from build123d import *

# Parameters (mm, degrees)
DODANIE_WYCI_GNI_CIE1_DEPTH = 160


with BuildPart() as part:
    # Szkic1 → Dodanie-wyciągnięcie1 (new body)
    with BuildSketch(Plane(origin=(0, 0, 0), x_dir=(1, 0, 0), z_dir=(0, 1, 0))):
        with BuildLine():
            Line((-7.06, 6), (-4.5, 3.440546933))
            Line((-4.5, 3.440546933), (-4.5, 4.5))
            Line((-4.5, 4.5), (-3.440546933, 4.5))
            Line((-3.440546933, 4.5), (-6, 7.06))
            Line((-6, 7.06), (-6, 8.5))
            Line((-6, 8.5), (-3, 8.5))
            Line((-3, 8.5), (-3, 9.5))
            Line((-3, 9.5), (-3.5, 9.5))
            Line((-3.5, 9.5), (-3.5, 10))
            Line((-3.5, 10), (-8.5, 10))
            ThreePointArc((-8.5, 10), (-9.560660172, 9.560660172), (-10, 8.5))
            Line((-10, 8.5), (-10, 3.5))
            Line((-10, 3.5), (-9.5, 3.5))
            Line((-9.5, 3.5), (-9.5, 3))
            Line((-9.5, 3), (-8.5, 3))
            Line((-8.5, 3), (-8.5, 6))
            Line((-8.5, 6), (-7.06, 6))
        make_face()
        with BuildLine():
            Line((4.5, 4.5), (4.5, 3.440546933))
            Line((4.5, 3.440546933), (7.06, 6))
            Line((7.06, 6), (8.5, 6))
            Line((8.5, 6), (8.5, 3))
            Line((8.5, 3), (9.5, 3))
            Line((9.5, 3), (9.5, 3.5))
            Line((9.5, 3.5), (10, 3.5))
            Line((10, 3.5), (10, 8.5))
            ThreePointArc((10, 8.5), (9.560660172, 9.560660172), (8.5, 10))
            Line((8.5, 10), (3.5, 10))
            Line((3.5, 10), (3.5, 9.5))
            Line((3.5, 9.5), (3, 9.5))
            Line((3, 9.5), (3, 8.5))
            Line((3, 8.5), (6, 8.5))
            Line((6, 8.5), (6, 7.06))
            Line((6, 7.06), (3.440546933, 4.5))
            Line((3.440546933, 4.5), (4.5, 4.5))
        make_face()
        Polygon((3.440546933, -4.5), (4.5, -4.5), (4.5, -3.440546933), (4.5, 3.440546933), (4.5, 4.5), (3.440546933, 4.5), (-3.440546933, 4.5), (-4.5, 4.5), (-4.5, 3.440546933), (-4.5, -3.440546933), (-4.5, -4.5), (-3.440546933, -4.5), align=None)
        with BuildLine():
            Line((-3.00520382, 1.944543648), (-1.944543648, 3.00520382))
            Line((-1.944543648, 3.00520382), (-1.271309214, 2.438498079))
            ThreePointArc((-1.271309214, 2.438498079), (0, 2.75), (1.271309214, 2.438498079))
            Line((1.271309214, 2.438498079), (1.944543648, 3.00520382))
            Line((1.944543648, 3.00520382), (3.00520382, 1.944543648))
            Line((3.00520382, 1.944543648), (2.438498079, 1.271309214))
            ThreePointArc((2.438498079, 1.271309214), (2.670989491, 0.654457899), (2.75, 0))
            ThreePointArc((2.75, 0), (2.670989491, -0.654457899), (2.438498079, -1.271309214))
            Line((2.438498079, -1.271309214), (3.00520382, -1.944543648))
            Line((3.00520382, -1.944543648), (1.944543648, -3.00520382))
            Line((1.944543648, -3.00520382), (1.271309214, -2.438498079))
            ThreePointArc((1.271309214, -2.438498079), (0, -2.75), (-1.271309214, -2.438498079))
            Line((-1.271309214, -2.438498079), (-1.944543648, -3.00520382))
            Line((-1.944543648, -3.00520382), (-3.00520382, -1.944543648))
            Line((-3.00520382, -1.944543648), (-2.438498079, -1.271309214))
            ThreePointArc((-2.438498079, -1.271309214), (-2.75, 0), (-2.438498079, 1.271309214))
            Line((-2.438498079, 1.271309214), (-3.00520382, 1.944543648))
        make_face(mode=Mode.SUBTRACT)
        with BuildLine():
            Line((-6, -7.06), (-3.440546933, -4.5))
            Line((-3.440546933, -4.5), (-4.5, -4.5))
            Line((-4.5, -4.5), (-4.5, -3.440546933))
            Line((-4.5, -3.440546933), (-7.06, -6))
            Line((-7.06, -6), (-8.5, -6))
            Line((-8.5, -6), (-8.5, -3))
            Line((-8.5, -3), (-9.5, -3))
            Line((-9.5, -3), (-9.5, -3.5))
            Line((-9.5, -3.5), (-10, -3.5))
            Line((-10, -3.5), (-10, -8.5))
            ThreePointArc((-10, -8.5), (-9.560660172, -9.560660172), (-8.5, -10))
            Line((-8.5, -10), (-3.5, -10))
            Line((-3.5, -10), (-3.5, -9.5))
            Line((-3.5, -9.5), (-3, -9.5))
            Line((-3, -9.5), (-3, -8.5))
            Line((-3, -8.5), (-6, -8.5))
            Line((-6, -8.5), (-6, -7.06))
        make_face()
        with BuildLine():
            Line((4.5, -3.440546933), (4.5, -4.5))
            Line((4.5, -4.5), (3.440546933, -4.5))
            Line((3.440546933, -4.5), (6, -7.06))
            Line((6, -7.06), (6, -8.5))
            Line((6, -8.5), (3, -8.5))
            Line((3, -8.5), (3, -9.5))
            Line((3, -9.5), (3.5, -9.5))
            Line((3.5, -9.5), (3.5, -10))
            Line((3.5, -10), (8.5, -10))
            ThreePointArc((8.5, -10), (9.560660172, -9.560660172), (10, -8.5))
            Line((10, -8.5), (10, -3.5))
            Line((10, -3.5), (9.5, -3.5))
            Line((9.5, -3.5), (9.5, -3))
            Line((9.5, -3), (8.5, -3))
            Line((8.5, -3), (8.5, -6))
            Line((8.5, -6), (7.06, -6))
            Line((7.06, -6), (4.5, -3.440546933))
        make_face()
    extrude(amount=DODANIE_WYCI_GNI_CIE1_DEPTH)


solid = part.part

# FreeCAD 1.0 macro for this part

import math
import FreeCAD as App
import Part
import Sketcher
from FreeCAD import Vector
Q = App.Units.Quantity

doc = App.newDocument("Part")
body = doc.addObject("PartDesign::Body", "Body")

sketch1 = body.newObject("Sketcher::SketchObject", "Sketch")
sketch1.AttachmentSupport = (doc.getObject("XZ_Plane"), [""])
sketch1.MapMode = "FlatFace"
sketch1.addGeometry(Part.LineSegment(Vector(-7.1, -6, 0), Vector(-4.5, -3.4, 0)), False)
sketch1.addGeometry(Part.LineSegment(Vector(-4.5, -3.4, 0), Vector(-4.5, 3.4, 0)), False)
sketch1.addGeometry(Part.LineSegment(Vector(-4.5, 3.4, 0), Vector(-7.1, 6, 0)), False)
sketch1.addGeometry(Part.LineSegment(Vector(-7.1, 6, 0), Vector(-8.5, 6, 0)), False)
sketch1.addGeometry(Part.LineSegment(Vector(-8.5, 6, 0), Vector(-8.5, 3, 0)), False)
sketch1.addGeometry(Part.LineSegment(Vector(-8.5, 3, 0), Vector(-9.5, 3, 0)), False)
sketch1.addGeometry(Part.LineSegment(Vector(-9.5, 3, 0), Vector(-9.5, 3.5, 0)), False)
sketch1.addGeometry(Part.LineSegment(Vector(-9.5, 3.5, 0), Vector(-10, 3.5, 0)), False)
sketch1.addGeometry(Part.LineSegment(Vector(-10, 3.5, 0), Vector(-10, 8.5, 0)), False)
sketch1.addGeometry(Part.ArcOfCircle(Part.Circle(Vector(-8.5, 8.5, 0), Vector(0, 0, 1), 1.5), math.radians(90), math.radians(180)), False)
sketch1.addGeometry(Part.LineSegment(Vector(-8.5, 10, 0), Vector(-3.5, 10, 0)), False)
sketch1.addGeometry(Part.LineSegment(Vector(-3.5, 10, 0), Vector(-3.5, 9.5, 0)), False)
sketch1.addGeometry(Part.LineSegment(Vector(-3.5, 9.5, 0), Vector(-3, 9.5, 0)), False)
sketch1.addGeometry(Part.LineSegment(Vector(-3, 9.5, 0), Vector(-3, 8.5, 0)), False)
sketch1.addGeometry(Part.LineSegment(Vector(-3, 8.5, 0), Vector(-6, 8.5, 0)), False)
sketch1.addGeometry(Part.LineSegment(Vector(-6, 8.5, 0), Vector(-6, 7.1, 0)), False)
sketch1.addGeometry(Part.LineSegment(Vector(-6, 7.1, 0), Vector(-3.4, 4.5, 0)), False)
sketch1.addGeometry(Part.LineSegment(Vector(-3.4, 4.5, 0), Vector(3.4, 4.5, 0)), False)
sketch1.addGeometry(Part.LineSegment(Vector(3.4, 4.5, 0), Vector(6, 7.1, 0)), False)
sketch1.addGeometry(Part.LineSegment(Vector(6, 7.1, 0), Vector(6, 8.5, 0)), False)
sketch1.addGeometry(Part.LineSegment(Vector(6, 8.5, 0), Vector(3, 8.5, 0)), False)
sketch1.addGeometry(Part.LineSegment(Vector(3, 8.5, 0), Vector(3, 9.5, 0)), False)
sketch1.addGeometry(Part.LineSegment(Vector(3, 9.5, 0), Vector(3.5, 9.5, 0)), False)
sketch1.addGeometry(Part.LineSegment(Vector(3.5, 9.5, 0), Vector(3.5, 10, 0)), False)
sketch1.addGeometry(Part.LineSegment(Vector(3.5, 10, 0), Vector(8.5, 10, 0)), False)
sketch1.addGeometry(Part.ArcOfCircle(Part.Circle(Vector(8.5, 8.5, 0), Vector(0, 0, 1), 1.5), math.radians(0), math.radians(90)), False)
sketch1.addGeometry(Part.LineSegment(Vector(10, 8.5, 0), Vector(10, 3.5, 0)), False)
sketch1.addGeometry(Part.LineSegment(Vector(10, 3.5, 0), Vector(9.5, 3.5, 0)), False)
sketch1.addGeometry(Part.LineSegment(Vector(9.5, 3.5, 0), Vector(9.5, 3, 0)), False)
sketch1.addGeometry(Part.LineSegment(Vector(9.5, 3, 0), Vector(8.5, 3, 0)), False)
sketch1.addGeometry(Part.LineSegment(Vector(8.5, 3, 0), Vector(8.5, 6, 0)), False)
sketch1.addGeometry(Part.LineSegment(Vector(8.5, 6, 0), Vector(7.1, 6, 0)), False)
sketch1.addGeometry(Part.LineSegment(Vector(7.1, 6, 0), Vector(4.5, 3.4, 0)), False)
sketch1.addGeometry(Part.LineSegment(Vector(4.5, 3.4, 0), Vector(4.5, -3.4, 0)), False)
sketch1.addGeometry(Part.LineSegment(Vector(4.5, -3.4, 0), Vector(7.1, -6, 0)), False)
sketch1.addGeometry(Part.LineSegment(Vector(7.1, -6, 0), Vector(8.5, -6, 0)), False)
sketch1.addGeometry(Part.LineSegment(Vector(8.5, -6, 0), Vector(8.5, -3, 0)), False)
sketch1.addGeometry(Part.LineSegment(Vector(8.5, -3, 0), Vector(9.5, -3, 0)), False)
sketch1.addGeometry(Part.LineSegment(Vector(9.5, -3, 0), Vector(9.5, -3.5, 0)), False)
sketch1.addGeometry(Part.LineSegment(Vector(9.5, -3.5, 0), Vector(10, -3.5, 0)), False)
sketch1.addGeometry(Part.LineSegment(Vector(10, -3.5, 0), Vector(10, -8.5, 0)), False)
sketch1.addGeometry(Part.ArcOfCircle(Part.Circle(Vector(8.5, -8.5, 0), Vector(0, 0, 1), 1.5), math.radians(-90), math.radians(0)), False)
sketch1.addGeometry(Part.LineSegment(Vector(8.5, -10, 0), Vector(3.5, -10, 0)), False)
sketch1.addGeometry(Part.LineSegment(Vector(3.5, -10, 0), Vector(3.5, -9.5, 0)), False)
sketch1.addGeometry(Part.LineSegment(Vector(3.5, -9.5, 0), Vector(3, -9.5, 0)), False)
sketch1.addGeometry(Part.LineSegment(Vector(3, -9.5, 0), Vector(3, -8.5, 0)), False)
sketch1.addGeometry(Part.LineSegment(Vector(3, -8.5, 0), Vector(6, -8.5, 0)), False)
sketch1.addGeometry(Part.LineSegment(Vector(6, -8.5, 0), Vector(6, -7.1, 0)), False)
sketch1.addGeometry(Part.LineSegment(Vector(6, -7.1, 0), Vector(3.4, -4.5, 0)), False)
sketch1.addGeometry(Part.LineSegment(Vector(3.4, -4.5, 0), Vector(-3.4, -4.5, 0)), False)
sketch1.addGeometry(Part.LineSegment(Vector(-3.4, -4.5, 0), Vector(-6, -7.1, 0)), False)
sketch1.addGeometry(Part.LineSegment(Vector(-6, -7.1, 0), Vector(-6, -8.5, 0)), False)
sketch1.addGeometry(Part.LineSegment(Vector(-6, -8.5, 0), Vector(-3, -8.5, 0)), False)
sketch1.addGeometry(Part.LineSegment(Vector(-3, -8.5, 0), Vector(-3, -9.5, 0)), False)
sketch1.addGeometry(Part.LineSegment(Vector(-3, -9.5, 0), Vector(-3.5, -9.5, 0)), False)
sketch1.addGeometry(Part.LineSegment(Vector(-3.5, -9.5, 0), Vector(-3.5, -10, 0)), False)
sketch1.addGeometry(Part.LineSegment(Vector(-3.5, -10, 0), Vector(-8.5, -10, 0)), False)
sketch1.addGeometry(Part.ArcOfCircle(Part.Circle(Vector(-8.5, -8.5, 0), Vector(0, 0, 1), 1.5), math.radians(180), math.radians(270)), False)
sketch1.addGeometry(Part.LineSegment(Vector(-10, -8.5, 0), Vector(-10, -3.5, 0)), False)
sketch1.addGeometry(Part.LineSegment(Vector(-10, -3.5, 0), Vector(-9.5, -3.5, 0)), False)
sketch1.addGeometry(Part.LineSegment(Vector(-9.5, -3.5, 0), Vector(-9.5, -3, 0)), False)
sketch1.addGeometry(Part.LineSegment(Vector(-9.5, -3, 0), Vector(-8.5, -3, 0)), False)
sketch1.addGeometry(Part.LineSegment(Vector(-8.5, -3, 0), Vector(-8.5, -6, 0)), False)
sketch1.addGeometry(Part.LineSegment(Vector(-8.5, -6, 0), Vector(-7.1, -6, 0)), False)
sketch1.addGeometry(Part.LineSegment(Vector(-2.4, -1.3, 0), Vector(-3, -1.9, 0)), False)
sketch1.addGeometry(Part.LineSegment(Vector(-3, -1.9, 0), Vector(-1.9, -3, 0)), False)
sketch1.addGeometry(Part.LineSegment(Vector(-1.9, -3, 0), Vector(-1.3, -2.4, 0)), False)
sketch1.addGeometry(Part.ArcOfCircle(Part.Circle(Vector(0, 0, 0), Vector(0, 0, 1), 2.7), math.radians(-118), math.radians(-62)), False)
sketch1.addGeometry(Part.LineSegment(Vector(1.3, -2.4, 0), Vector(1.9, -3, 0)), False)
sketch1.addGeometry(Part.LineSegment(Vector(1.9, -3, 0), Vector(3, -1.9, 0)), False)
sketch1.addGeometry(Part.LineSegment(Vector(3, -1.9, 0), Vector(2.4, -1.3, 0)), False)
sketch1.addGeometry(Part.ArcOfCircle(Part.Circle(Vector(0, 0, 0), Vector(0, 0, 1), 2.7), math.radians(-28), math.radians(0)), False)
sketch1.addGeometry(Part.ArcOfCircle(Part.Circle(Vector(0, 0, 0), Vector(0, 0, 1), 2.7), math.radians(0), math.radians(28)), False)
sketch1.addGeometry(Part.LineSegment(Vector(2.4, 1.3, 0), Vector(3, 1.9, 0)), False)
sketch1.addGeometry(Part.LineSegment(Vector(3, 1.9, 0), Vector(1.9, 3, 0)), False)
sketch1.addGeometry(Part.LineSegment(Vector(1.9, 3, 0), Vector(1.3, 2.4, 0)), False)
sketch1.addGeometry(Part.ArcOfCircle(Part.Circle(Vector(0, 0, 0), Vector(0, 0, 1), 2.7), math.radians(62), math.radians(118)), False)
sketch1.addGeometry(Part.LineSegment(Vector(-1.3, 2.4, 0), Vector(-1.9, 3, 0)), False)
sketch1.addGeometry(Part.LineSegment(Vector(-1.9, 3, 0), Vector(-3, 1.9, 0)), False)
sketch1.addGeometry(Part.LineSegment(Vector(-3, 1.9, 0), Vector(-2.4, 1.3, 0)), False)
sketch1.addGeometry(Part.ArcOfCircle(Part.Circle(Vector(0, 0, 0), Vector(0, 0, 1), 2.7), math.radians(152), math.radians(208)), False)
sketch1.addConstraint(Sketcher.Constraint("Coincident", 0, 2, 1, 1))
sketch1.addConstraint(Sketcher.Constraint("Coincident", 1, 2, 2, 1))
sketch1.addConstraint(Sketcher.Constraint("Coincident", 2, 2, 3, 1))
sketch1.addConstraint(Sketcher.Constraint("Coincident", 3, 2, 4, 1))
sketch1.addConstraint(Sketcher.Constraint("Coincident", 4, 2, 5, 1))
sketch1.addConstraint(Sketcher.Constraint("Coincident", 5, 2, 6, 1))
sketch1.addConstraint(Sketcher.Constraint("Coincident", 6, 2, 7, 1))
sketch1.addConstraint(Sketcher.Constraint("Coincident", 7, 2, 8, 1))
sketch1.addConstraint(Sketcher.Constraint("Tangent", 8, 2, 9, 2))
sketch1.addConstraint(Sketcher.Constraint("Tangent", 9, 1, 10, 1))
sketch1.addConstraint(Sketcher.Constraint("Coincident", 10, 2, 11, 1))
sketch1.addConstraint(Sketcher.Constraint("Coincident", 11, 2, 12, 1))
sketch1.addConstraint(Sketcher.Constraint("Coincident", 12, 2, 13, 1))
sketch1.addConstraint(Sketcher.Constraint("Coincident", 13, 2, 14, 1))
sketch1.addConstraint(Sketcher.Constraint("Coincident", 14, 2, 15, 1))
sketch1.addConstraint(Sketcher.Constraint("Coincident", 15, 2, 16, 1))
sketch1.addConstraint(Sketcher.Constraint("Coincident", 16, 2, 17, 1))
sketch1.addConstraint(Sketcher.Constraint("Coincident", 17, 2, 18, 1))
sketch1.addConstraint(Sketcher.Constraint("Coincident", 18, 2, 19, 1))
sketch1.addConstraint(Sketcher.Constraint("Coincident", 19, 2, 20, 1))
sketch1.addConstraint(Sketcher.Constraint("Coincident", 20, 2, 21, 1))
sketch1.addConstraint(Sketcher.Constraint("Coincident", 21, 2, 22, 1))
sketch1.addConstraint(Sketcher.Constraint("Coincident", 22, 2, 23, 1))
sketch1.addConstraint(Sketcher.Constraint("Coincident", 23, 2, 24, 1))
sketch1.addConstraint(Sketcher.Constraint("Tangent", 24, 2, 25, 2))
sketch1.addConstraint(Sketcher.Constraint("Tangent", 25, 1, 26, 1))
sketch1.addConstraint(Sketcher.Constraint("Coincident", 26, 2, 27, 1))
sketch1.addConstraint(Sketcher.Constraint("Coincident", 27, 2, 28, 1))
sketch1.addConstraint(Sketcher.Constraint("Coincident", 28, 2, 29, 1))
sketch1.addConstraint(Sketcher.Constraint("Coincident", 29, 2, 30, 1))
sketch1.addConstraint(Sketcher.Constraint("Coincident", 30, 2, 31, 1))
sketch1.addConstraint(Sketcher.Constraint("Coincident", 31, 2, 32, 1))
sketch1.addConstraint(Sketcher.Constraint("Coincident", 32, 2, 33, 1))
sketch1.addConstraint(Sketcher.Constraint("Coincident", 33, 2, 34, 1))
sketch1.addConstraint(Sketcher.Constraint("Coincident", 34, 2, 35, 1))
sketch1.addConstraint(Sketcher.Constraint("Coincident", 35, 2, 36, 1))
sketch1.addConstraint(Sketcher.Constraint("Coincident", 36, 2, 37, 1))
sketch1.addConstraint(Sketcher.Constraint("Coincident", 37, 2, 38, 1))
sketch1.addConstraint(Sketcher.Constraint("Coincident", 38, 2, 39, 1))
sketch1.addConstraint(Sketcher.Constraint("Coincident", 39, 2, 40, 1))
sketch1.addConstraint(Sketcher.Constraint("Tangent", 40, 2, 41, 2))
sketch1.addConstraint(Sketcher.Constraint("Tangent", 41, 1, 42, 1))
sketch1.addConstraint(Sketcher.Constraint("Coincident", 42, 2, 43, 1))
sketch1.addConstraint(Sketcher.Constraint("Coincident", 43, 2, 44, 1))
sketch1.addConstraint(Sketcher.Constraint("Coincident", 44, 2, 45, 1))
sketch1.addConstraint(Sketcher.Constraint("Coincident", 45, 2, 46, 1))
sketch1.addConstraint(Sketcher.Constraint("Coincident", 46, 2, 47, 1))
sketch1.addConstraint(Sketcher.Constraint("Coincident", 47, 2, 48, 1))
sketch1.addConstraint(Sketcher.Constraint("Coincident", 48, 2, 49, 1))
sketch1.addConstraint(Sketcher.Constraint("Coincident", 49, 2, 50, 1))
sketch1.addConstraint(Sketcher.Constraint("Coincident", 50, 2, 51, 1))
sketch1.addConstraint(Sketcher.Constraint("Coincident", 51, 2, 52, 1))
sketch1.addConstraint(Sketcher.Constraint("Coincident", 52, 2, 53, 1))
sketch1.addConstraint(Sketcher.Constraint("Coincident", 53, 2, 54, 1))
sketch1.addConstraint(Sketcher.Constraint("Coincident", 54, 2, 55, 1))
sketch1.addConstraint(Sketcher.Constraint("Coincident", 55, 2, 56, 1))
sketch1.addConstraint(Sketcher.Constraint("Tangent", 56, 2, 57, 2))
sketch1.addConstraint(Sketcher.Constraint("Tangent", 57, 1, 58, 1))
sketch1.addConstraint(Sketcher.Constraint("Coincident", 58, 2, 59, 1))
sketch1.addConstraint(Sketcher.Constraint("Coincident", 59, 2, 60, 1))
sketch1.addConstraint(Sketcher.Constraint("Coincident", 60, 2, 61, 1))
sketch1.addConstraint(Sketcher.Constraint("Coincident", 61, 2, 62, 1))
sketch1.addConstraint(Sketcher.Constraint("Coincident", 62, 2, 63, 1))
sketch1.addConstraint(Sketcher.Constraint("Coincident", 63, 2, 0, 1))
sketch1.addConstraint(Sketcher.Constraint("Coincident", 64, 2, 65, 1))
sketch1.addConstraint(Sketcher.Constraint("Coincident", 65, 2, 66, 1))
sketch1.addConstraint(Sketcher.Constraint("Coincident", 66, 2, 67, 1))
sketch1.addConstraint(Sketcher.Constraint("Coincident", 67, 2, 68, 1))
sketch1.addConstraint(Sketcher.Constraint("Coincident", 68, 2, 69, 1))
sketch1.addConstraint(Sketcher.Constraint("Coincident", 69, 2, 70, 1))
sketch1.addConstraint(Sketcher.Constraint("Coincident", 70, 2, 71, 1))
sketch1.addConstraint(Sketcher.Constraint("Tangent", 71, 2, 72, 1))
sketch1.addConstraint(Sketcher.Constraint("Coincident", 72, 2, 73, 1))
sketch1.addConstraint(Sketcher.Constraint("Coincident", 73, 2, 74, 1))
sketch1.addConstraint(Sketcher.Constraint("Coincident", 74, 2, 75, 1))
sketch1.addConstraint(Sketcher.Constraint("Coincident", 75, 2, 76, 1))
sketch1.addConstraint(Sketcher.Constraint("Coincident", 76, 2, 77, 1))
sketch1.addConstraint(Sketcher.Constraint("Coincident", 77, 2, 78, 1))
sketch1.addConstraint(Sketcher.Constraint("Coincident", 78, 2, 79, 1))
sketch1.addConstraint(Sketcher.Constraint("Coincident", 79, 2, 80, 1))
sketch1.addConstraint(Sketcher.Constraint("Coincident", 80, 2, 64, 1))
sketch1.addConstraint(Sketcher.Constraint("Vertical", 1))
sketch1.addConstraint(Sketcher.Constraint("Horizontal", 3))
sketch1.addConstraint(Sketcher.Constraint("Vertical", 4))
sketch1.addConstraint(Sketcher.Constraint("Horizontal", 5))
sketch1.addConstraint(Sketcher.Constraint("Vertical", 6))
sketch1.addConstraint(Sketcher.Constraint("Horizontal", 7))
sketch1.addConstraint(Sketcher.Constraint("Vertical", 8))
sketch1.addConstraint(Sketcher.Constraint("Horizontal", 10))
sketch1.addConstraint(Sketcher.Constraint("Vertical", 11))
sketch1.addConstraint(Sketcher.Constraint("Horizontal", 12))
sketch1.addConstraint(Sketcher.Constraint("Vertical", 13))
sketch1.addConstraint(Sketcher.Constraint("Horizontal", 14))
sketch1.addConstraint(Sketcher.Constraint("Vertical", 15))
sketch1.addConstraint(Sketcher.Constraint("Horizontal", 17))
sketch1.addConstraint(Sketcher.Constraint("Vertical", 19))
sketch1.addConstraint(Sketcher.Constraint("Horizontal", 20))
sketch1.addConstraint(Sketcher.Constraint("Vertical", 21))
sketch1.addConstraint(Sketcher.Constraint("Horizontal", 22))
sketch1.addConstraint(Sketcher.Constraint("Vertical", 23))
sketch1.addConstraint(Sketcher.Constraint("Horizontal", 24))
sketch1.addConstraint(Sketcher.Constraint("Vertical", 26))
sketch1.addConstraint(Sketcher.Constraint("Horizontal", 27))
sketch1.addConstraint(Sketcher.Constraint("Vertical", 28))
sketch1.addConstraint(Sketcher.Constraint("Horizontal", 29))
sketch1.addConstraint(Sketcher.Constraint("Vertical", 30))
sketch1.addConstraint(Sketcher.Constraint("Horizontal", 31))
sketch1.addConstraint(Sketcher.Constraint("Vertical", 33))
sketch1.addConstraint(Sketcher.Constraint("Horizontal", 35))
sketch1.addConstraint(Sketcher.Constraint("Vertical", 36))
sketch1.addConstraint(Sketcher.Constraint("Horizontal", 37))
sketch1.addConstraint(Sketcher.Constraint("Vertical", 38))
sketch1.addConstraint(Sketcher.Constraint("Horizontal", 39))
sketch1.addConstraint(Sketcher.Constraint("Vertical", 40))
sketch1.addConstraint(Sketcher.Constraint("Horizontal", 42))
sketch1.addConstraint(Sketcher.Constraint("Vertical", 43))
sketch1.addConstraint(Sketcher.Constraint("Horizontal", 44))
sketch1.addConstraint(Sketcher.Constraint("Vertical", 45))
sketch1.addConstraint(Sketcher.Constraint("Horizontal", 46))
sketch1.addConstraint(Sketcher.Constraint("Vertical", 47))
sketch1.addConstraint(Sketcher.Constraint("Horizontal", 49))
sketch1.addConstraint(Sketcher.Constraint("Vertical", 51))
sketch1.addConstraint(Sketcher.Constraint("Horizontal", 52))
sketch1.addConstraint(Sketcher.Constraint("Vertical", 53))
sketch1.addConstraint(Sketcher.Constraint("Horizontal", 54))
sketch1.addConstraint(Sketcher.Constraint("Vertical", 55))
sketch1.addConstraint(Sketcher.Constraint("Horizontal", 56))
sketch1.addConstraint(Sketcher.Constraint("Vertical", 58))
sketch1.addConstraint(Sketcher.Constraint("Horizontal", 59))
sketch1.addConstraint(Sketcher.Constraint("Vertical", 60))
sketch1.addConstraint(Sketcher.Constraint("Horizontal", 61))
sketch1.addConstraint(Sketcher.Constraint("Vertical", 62))
sketch1.addConstraint(Sketcher.Constraint("Horizontal", 63))
sketch1.addConstraint(Sketcher.Constraint("Coincident", 67, 3, -1, 1))
sketch1.addConstraint(Sketcher.Constraint("Coincident", 71, 3, -1, 1))
sketch1.addConstraint(Sketcher.Constraint("Coincident", 76, 3, -1, 1))
sketch1.addConstraint(Sketcher.Constraint("Coincident", 80, 3, -1, 1))
sketch1.addConstraint(Sketcher.Constraint("Equal", 9, 25))
sketch1.addConstraint(Sketcher.Constraint("Equal", 25, 41))
sketch1.addConstraint(Sketcher.Constraint("Equal", 41, 57))
sketch1.addConstraint(Sketcher.Constraint("Equal", 67, 71))
sketch1.addConstraint(Sketcher.Constraint("Equal", 71, 72))
sketch1.addConstraint(Sketcher.Constraint("Equal", 72, 76))
sketch1.addConstraint(Sketcher.Constraint("Equal", 76, 80))
sketch1.addConstraint(Sketcher.Constraint("Symmetric", 9, 3, 41, 3, -1, 1))
sketch1.addConstraint(Sketcher.Constraint("Symmetric", 25, 3, 57, 3, -1, 1))
sketch1.addConstraint(Sketcher.Constraint("Symmetric", 0, 2, 32, 2, -1, 1))
sketch1.addConstraint(Sketcher.Constraint("Symmetric", 2, 2, 34, 2, -1, 1))
sketch1.addConstraint(Sketcher.Constraint("Symmetric", 4, 2, 36, 2, -1, 1))
sketch1.addConstraint(Sketcher.Constraint("Symmetric", 6, 2, 38, 2, -1, 1))
sketch1.addConstraint(Sketcher.Constraint("Symmetric", 11, 2, 43, 2, -1, 1))
sketch1.addConstraint(Sketcher.Constraint("Symmetric", 13, 2, 45, 2, -1, 1))
sketch1.addConstraint(Sketcher.Constraint("Symmetric", 15, 2, 47, 2, -1, 1))
sketch1.addConstraint(Sketcher.Constraint("Symmetric", 16, 2, 48, 2, -1, 1))
sketch1.addConstraint(Sketcher.Constraint("Symmetric", 18, 2, 50, 2, -1, 1))
sketch1.addConstraint(Sketcher.Constraint("Symmetric", 20, 2, 52, 2, -1, 1))
sketch1.addConstraint(Sketcher.Constraint("Symmetric", 22, 2, 54, 2, -1, 1))
sketch1.addConstraint(Sketcher.Constraint("Symmetric", 27, 2, 59, 2, -1, 1))
sketch1.addConstraint(Sketcher.Constraint("Symmetric", 29, 2, 61, 2, -1, 1))
sketch1.addConstraint(Sketcher.Constraint("Symmetric", 31, 2, 63, 2, -1, 1))
sketch1.addConstraint(Sketcher.Constraint("Symmetric", 64, 2, 73, 2, -1, 1))
sketch1.addConstraint(Sketcher.Constraint("Symmetric", 65, 2, 74, 2, -1, 1))
sketch1.addConstraint(Sketcher.Constraint("Symmetric", 68, 2, 77, 2, -1, 1))
sketch1.addConstraint(Sketcher.Constraint("Symmetric", 69, 2, 78, 2, -1, 1))
sketch1.addConstraint(Sketcher.Constraint("Symmetric", 9, 3, 25, 3, -2))
sketch1.addConstraint(Sketcher.Constraint("Symmetric", 15, 2, 18, 2, -2))
sketch1.addConstraint(Sketcher.Constraint("Symmetric", 13, 2, 20, 2, -2))
sketch1.addConstraint(Sketcher.Constraint("Symmetric", 11, 2, 22, 2, -2))
sketch1.addConstraint(Sketcher.Constraint("Symmetric", 6, 2, 27, 2, -2))
sketch1.addConstraint(Sketcher.Constraint("Symmetric", 4, 2, 29, 2, -2))
sketch1.addConstraint(Sketcher.Constraint("Symmetric", 2, 2, 31, 2, -2))
sketch1.addConstraint(Sketcher.Constraint("Symmetric", 65, 2, 68, 2, -2))
sketch1.addConstraint(Sketcher.Constraint("Symmetric", 64, 2, 69, 2, -2))
sketch1.addConstraint(Sketcher.Constraint("PointOnObject", 71, 2, -1))
sketch1.addConstraint(Sketcher.Constraint("Perpendicular", 0, 16))
sketch1.addConstraint(Sketcher.Constraint("Perpendicular", 2, 18))
sketch1.addConstraint(Sketcher.Constraint("Perpendicular", 18, 34))
sketch1.addConstraint(Sketcher.Constraint("Perpendicular", 34, 50))
sketch1.addConstraint(Sketcher.Constraint("Perpendicular", 64, 68))
sketch1.addConstraint(Sketcher.Constraint("Perpendicular", 65, 69))
sketch1.addConstraint(Sketcher.Constraint("Perpendicular", 66, 70))
sketch1.addConstraint(Sketcher.Constraint("Perpendicular", 68, 73))
sketch1.addConstraint(Sketcher.Constraint("Perpendicular", 70, 75))
sketch1.addConstraint(Sketcher.Constraint("Perpendicular", 73, 77))
sketch1.addConstraint(Sketcher.Constraint("Perpendicular", 75, 79))
sketch1.addConstraint(Sketcher.Constraint("Horizontal", 8, 2, 13, 2))
sketch1.addConstraint(Sketcher.Constraint("Horizontal", 1, 2, 32, 2))
sketch1.addConstraint(Sketcher.Constraint("Horizontal", 66, 2, 67, 2))
sketch1.addConstraint(Sketcher.Constraint("Vertical", 57, 3, 3, 2))
sketch1.addConstraint(Sketcher.Constraint("Equal", 7, 12))
sketch1.addConstraint(Sketcher.Constraint("Equal", 49, 1))
sketch1.addConstraint(Sketcher.Constraint("Equal", 52, 4))
sketch1.addConstraint(Sketcher.Constraint("Equal", 59, 6))
sketch1.addConstraint(Sketcher.Constraint("Equal", 56, 8))
sketch1.addConstraint(Sketcher.Constraint("Equal", 6, 11))
sketch1.addConstraint(Sketcher.Constraint("Equal", 63, 15))
sketch1.addConstraint(Sketcher.Constraint("Equal", 2, 16))
sketch1.addConstraint(Sketcher.Constraint("Equal", 64, 66))
sketch1.addConstraint(Sketcher.Constraint("Radius", 9, Q("1.5 mm")))
sketch1.addConstraint(Sketcher.Constraint("DistanceX", 5, 2, 5, 1, Q("1 mm")))
sketch1.addConstraint(Sketcher.Constraint("DistanceX", 10, 1, 10, 2, Q("5 mm")))
sketch1.addConstraint(Sketcher.Constraint("DistanceX", 14, 2, 14, 1, Q("3 mm")))
sketch1.addConstraint(Sketcher.Constraint("Radius", 67, Q("2.75 mm")))
sketch1.addConstraint(Sketcher.Constraint("DistanceY", -1, 1, 2, 2, Q("6 mm")))
sketch1.addConstraint(Sketcher.Constraint("Distance", 65, Q("1.5 mm")))
sketch1.addConstraint(Sketcher.Constraint("DistanceX", 3, 2, 3, 1, Q("1.44 mm")))
sketch1.addConstraint(Sketcher.Constraint("DistanceX", 0, 2, -1, 1, Q("4.5 mm")))
sketch1.addConstraint(Sketcher.Constraint("Distance", 0, Q("3.62 mm")))
sketch1.addConstraint(Sketcher.Constraint("Distance", 64, Q("0.88 mm")))
sketch1.addConstraint(Sketcher.Constraint("DistanceY", 66, 2, -1, 1, Q("2.438498 mm")))
pad1 = body.newObject("PartDesign::Pad", "Pad")
pad1.Profile = sketch1
pad1.Length = 160
pad1.Reversed = True

doc.recompute()
